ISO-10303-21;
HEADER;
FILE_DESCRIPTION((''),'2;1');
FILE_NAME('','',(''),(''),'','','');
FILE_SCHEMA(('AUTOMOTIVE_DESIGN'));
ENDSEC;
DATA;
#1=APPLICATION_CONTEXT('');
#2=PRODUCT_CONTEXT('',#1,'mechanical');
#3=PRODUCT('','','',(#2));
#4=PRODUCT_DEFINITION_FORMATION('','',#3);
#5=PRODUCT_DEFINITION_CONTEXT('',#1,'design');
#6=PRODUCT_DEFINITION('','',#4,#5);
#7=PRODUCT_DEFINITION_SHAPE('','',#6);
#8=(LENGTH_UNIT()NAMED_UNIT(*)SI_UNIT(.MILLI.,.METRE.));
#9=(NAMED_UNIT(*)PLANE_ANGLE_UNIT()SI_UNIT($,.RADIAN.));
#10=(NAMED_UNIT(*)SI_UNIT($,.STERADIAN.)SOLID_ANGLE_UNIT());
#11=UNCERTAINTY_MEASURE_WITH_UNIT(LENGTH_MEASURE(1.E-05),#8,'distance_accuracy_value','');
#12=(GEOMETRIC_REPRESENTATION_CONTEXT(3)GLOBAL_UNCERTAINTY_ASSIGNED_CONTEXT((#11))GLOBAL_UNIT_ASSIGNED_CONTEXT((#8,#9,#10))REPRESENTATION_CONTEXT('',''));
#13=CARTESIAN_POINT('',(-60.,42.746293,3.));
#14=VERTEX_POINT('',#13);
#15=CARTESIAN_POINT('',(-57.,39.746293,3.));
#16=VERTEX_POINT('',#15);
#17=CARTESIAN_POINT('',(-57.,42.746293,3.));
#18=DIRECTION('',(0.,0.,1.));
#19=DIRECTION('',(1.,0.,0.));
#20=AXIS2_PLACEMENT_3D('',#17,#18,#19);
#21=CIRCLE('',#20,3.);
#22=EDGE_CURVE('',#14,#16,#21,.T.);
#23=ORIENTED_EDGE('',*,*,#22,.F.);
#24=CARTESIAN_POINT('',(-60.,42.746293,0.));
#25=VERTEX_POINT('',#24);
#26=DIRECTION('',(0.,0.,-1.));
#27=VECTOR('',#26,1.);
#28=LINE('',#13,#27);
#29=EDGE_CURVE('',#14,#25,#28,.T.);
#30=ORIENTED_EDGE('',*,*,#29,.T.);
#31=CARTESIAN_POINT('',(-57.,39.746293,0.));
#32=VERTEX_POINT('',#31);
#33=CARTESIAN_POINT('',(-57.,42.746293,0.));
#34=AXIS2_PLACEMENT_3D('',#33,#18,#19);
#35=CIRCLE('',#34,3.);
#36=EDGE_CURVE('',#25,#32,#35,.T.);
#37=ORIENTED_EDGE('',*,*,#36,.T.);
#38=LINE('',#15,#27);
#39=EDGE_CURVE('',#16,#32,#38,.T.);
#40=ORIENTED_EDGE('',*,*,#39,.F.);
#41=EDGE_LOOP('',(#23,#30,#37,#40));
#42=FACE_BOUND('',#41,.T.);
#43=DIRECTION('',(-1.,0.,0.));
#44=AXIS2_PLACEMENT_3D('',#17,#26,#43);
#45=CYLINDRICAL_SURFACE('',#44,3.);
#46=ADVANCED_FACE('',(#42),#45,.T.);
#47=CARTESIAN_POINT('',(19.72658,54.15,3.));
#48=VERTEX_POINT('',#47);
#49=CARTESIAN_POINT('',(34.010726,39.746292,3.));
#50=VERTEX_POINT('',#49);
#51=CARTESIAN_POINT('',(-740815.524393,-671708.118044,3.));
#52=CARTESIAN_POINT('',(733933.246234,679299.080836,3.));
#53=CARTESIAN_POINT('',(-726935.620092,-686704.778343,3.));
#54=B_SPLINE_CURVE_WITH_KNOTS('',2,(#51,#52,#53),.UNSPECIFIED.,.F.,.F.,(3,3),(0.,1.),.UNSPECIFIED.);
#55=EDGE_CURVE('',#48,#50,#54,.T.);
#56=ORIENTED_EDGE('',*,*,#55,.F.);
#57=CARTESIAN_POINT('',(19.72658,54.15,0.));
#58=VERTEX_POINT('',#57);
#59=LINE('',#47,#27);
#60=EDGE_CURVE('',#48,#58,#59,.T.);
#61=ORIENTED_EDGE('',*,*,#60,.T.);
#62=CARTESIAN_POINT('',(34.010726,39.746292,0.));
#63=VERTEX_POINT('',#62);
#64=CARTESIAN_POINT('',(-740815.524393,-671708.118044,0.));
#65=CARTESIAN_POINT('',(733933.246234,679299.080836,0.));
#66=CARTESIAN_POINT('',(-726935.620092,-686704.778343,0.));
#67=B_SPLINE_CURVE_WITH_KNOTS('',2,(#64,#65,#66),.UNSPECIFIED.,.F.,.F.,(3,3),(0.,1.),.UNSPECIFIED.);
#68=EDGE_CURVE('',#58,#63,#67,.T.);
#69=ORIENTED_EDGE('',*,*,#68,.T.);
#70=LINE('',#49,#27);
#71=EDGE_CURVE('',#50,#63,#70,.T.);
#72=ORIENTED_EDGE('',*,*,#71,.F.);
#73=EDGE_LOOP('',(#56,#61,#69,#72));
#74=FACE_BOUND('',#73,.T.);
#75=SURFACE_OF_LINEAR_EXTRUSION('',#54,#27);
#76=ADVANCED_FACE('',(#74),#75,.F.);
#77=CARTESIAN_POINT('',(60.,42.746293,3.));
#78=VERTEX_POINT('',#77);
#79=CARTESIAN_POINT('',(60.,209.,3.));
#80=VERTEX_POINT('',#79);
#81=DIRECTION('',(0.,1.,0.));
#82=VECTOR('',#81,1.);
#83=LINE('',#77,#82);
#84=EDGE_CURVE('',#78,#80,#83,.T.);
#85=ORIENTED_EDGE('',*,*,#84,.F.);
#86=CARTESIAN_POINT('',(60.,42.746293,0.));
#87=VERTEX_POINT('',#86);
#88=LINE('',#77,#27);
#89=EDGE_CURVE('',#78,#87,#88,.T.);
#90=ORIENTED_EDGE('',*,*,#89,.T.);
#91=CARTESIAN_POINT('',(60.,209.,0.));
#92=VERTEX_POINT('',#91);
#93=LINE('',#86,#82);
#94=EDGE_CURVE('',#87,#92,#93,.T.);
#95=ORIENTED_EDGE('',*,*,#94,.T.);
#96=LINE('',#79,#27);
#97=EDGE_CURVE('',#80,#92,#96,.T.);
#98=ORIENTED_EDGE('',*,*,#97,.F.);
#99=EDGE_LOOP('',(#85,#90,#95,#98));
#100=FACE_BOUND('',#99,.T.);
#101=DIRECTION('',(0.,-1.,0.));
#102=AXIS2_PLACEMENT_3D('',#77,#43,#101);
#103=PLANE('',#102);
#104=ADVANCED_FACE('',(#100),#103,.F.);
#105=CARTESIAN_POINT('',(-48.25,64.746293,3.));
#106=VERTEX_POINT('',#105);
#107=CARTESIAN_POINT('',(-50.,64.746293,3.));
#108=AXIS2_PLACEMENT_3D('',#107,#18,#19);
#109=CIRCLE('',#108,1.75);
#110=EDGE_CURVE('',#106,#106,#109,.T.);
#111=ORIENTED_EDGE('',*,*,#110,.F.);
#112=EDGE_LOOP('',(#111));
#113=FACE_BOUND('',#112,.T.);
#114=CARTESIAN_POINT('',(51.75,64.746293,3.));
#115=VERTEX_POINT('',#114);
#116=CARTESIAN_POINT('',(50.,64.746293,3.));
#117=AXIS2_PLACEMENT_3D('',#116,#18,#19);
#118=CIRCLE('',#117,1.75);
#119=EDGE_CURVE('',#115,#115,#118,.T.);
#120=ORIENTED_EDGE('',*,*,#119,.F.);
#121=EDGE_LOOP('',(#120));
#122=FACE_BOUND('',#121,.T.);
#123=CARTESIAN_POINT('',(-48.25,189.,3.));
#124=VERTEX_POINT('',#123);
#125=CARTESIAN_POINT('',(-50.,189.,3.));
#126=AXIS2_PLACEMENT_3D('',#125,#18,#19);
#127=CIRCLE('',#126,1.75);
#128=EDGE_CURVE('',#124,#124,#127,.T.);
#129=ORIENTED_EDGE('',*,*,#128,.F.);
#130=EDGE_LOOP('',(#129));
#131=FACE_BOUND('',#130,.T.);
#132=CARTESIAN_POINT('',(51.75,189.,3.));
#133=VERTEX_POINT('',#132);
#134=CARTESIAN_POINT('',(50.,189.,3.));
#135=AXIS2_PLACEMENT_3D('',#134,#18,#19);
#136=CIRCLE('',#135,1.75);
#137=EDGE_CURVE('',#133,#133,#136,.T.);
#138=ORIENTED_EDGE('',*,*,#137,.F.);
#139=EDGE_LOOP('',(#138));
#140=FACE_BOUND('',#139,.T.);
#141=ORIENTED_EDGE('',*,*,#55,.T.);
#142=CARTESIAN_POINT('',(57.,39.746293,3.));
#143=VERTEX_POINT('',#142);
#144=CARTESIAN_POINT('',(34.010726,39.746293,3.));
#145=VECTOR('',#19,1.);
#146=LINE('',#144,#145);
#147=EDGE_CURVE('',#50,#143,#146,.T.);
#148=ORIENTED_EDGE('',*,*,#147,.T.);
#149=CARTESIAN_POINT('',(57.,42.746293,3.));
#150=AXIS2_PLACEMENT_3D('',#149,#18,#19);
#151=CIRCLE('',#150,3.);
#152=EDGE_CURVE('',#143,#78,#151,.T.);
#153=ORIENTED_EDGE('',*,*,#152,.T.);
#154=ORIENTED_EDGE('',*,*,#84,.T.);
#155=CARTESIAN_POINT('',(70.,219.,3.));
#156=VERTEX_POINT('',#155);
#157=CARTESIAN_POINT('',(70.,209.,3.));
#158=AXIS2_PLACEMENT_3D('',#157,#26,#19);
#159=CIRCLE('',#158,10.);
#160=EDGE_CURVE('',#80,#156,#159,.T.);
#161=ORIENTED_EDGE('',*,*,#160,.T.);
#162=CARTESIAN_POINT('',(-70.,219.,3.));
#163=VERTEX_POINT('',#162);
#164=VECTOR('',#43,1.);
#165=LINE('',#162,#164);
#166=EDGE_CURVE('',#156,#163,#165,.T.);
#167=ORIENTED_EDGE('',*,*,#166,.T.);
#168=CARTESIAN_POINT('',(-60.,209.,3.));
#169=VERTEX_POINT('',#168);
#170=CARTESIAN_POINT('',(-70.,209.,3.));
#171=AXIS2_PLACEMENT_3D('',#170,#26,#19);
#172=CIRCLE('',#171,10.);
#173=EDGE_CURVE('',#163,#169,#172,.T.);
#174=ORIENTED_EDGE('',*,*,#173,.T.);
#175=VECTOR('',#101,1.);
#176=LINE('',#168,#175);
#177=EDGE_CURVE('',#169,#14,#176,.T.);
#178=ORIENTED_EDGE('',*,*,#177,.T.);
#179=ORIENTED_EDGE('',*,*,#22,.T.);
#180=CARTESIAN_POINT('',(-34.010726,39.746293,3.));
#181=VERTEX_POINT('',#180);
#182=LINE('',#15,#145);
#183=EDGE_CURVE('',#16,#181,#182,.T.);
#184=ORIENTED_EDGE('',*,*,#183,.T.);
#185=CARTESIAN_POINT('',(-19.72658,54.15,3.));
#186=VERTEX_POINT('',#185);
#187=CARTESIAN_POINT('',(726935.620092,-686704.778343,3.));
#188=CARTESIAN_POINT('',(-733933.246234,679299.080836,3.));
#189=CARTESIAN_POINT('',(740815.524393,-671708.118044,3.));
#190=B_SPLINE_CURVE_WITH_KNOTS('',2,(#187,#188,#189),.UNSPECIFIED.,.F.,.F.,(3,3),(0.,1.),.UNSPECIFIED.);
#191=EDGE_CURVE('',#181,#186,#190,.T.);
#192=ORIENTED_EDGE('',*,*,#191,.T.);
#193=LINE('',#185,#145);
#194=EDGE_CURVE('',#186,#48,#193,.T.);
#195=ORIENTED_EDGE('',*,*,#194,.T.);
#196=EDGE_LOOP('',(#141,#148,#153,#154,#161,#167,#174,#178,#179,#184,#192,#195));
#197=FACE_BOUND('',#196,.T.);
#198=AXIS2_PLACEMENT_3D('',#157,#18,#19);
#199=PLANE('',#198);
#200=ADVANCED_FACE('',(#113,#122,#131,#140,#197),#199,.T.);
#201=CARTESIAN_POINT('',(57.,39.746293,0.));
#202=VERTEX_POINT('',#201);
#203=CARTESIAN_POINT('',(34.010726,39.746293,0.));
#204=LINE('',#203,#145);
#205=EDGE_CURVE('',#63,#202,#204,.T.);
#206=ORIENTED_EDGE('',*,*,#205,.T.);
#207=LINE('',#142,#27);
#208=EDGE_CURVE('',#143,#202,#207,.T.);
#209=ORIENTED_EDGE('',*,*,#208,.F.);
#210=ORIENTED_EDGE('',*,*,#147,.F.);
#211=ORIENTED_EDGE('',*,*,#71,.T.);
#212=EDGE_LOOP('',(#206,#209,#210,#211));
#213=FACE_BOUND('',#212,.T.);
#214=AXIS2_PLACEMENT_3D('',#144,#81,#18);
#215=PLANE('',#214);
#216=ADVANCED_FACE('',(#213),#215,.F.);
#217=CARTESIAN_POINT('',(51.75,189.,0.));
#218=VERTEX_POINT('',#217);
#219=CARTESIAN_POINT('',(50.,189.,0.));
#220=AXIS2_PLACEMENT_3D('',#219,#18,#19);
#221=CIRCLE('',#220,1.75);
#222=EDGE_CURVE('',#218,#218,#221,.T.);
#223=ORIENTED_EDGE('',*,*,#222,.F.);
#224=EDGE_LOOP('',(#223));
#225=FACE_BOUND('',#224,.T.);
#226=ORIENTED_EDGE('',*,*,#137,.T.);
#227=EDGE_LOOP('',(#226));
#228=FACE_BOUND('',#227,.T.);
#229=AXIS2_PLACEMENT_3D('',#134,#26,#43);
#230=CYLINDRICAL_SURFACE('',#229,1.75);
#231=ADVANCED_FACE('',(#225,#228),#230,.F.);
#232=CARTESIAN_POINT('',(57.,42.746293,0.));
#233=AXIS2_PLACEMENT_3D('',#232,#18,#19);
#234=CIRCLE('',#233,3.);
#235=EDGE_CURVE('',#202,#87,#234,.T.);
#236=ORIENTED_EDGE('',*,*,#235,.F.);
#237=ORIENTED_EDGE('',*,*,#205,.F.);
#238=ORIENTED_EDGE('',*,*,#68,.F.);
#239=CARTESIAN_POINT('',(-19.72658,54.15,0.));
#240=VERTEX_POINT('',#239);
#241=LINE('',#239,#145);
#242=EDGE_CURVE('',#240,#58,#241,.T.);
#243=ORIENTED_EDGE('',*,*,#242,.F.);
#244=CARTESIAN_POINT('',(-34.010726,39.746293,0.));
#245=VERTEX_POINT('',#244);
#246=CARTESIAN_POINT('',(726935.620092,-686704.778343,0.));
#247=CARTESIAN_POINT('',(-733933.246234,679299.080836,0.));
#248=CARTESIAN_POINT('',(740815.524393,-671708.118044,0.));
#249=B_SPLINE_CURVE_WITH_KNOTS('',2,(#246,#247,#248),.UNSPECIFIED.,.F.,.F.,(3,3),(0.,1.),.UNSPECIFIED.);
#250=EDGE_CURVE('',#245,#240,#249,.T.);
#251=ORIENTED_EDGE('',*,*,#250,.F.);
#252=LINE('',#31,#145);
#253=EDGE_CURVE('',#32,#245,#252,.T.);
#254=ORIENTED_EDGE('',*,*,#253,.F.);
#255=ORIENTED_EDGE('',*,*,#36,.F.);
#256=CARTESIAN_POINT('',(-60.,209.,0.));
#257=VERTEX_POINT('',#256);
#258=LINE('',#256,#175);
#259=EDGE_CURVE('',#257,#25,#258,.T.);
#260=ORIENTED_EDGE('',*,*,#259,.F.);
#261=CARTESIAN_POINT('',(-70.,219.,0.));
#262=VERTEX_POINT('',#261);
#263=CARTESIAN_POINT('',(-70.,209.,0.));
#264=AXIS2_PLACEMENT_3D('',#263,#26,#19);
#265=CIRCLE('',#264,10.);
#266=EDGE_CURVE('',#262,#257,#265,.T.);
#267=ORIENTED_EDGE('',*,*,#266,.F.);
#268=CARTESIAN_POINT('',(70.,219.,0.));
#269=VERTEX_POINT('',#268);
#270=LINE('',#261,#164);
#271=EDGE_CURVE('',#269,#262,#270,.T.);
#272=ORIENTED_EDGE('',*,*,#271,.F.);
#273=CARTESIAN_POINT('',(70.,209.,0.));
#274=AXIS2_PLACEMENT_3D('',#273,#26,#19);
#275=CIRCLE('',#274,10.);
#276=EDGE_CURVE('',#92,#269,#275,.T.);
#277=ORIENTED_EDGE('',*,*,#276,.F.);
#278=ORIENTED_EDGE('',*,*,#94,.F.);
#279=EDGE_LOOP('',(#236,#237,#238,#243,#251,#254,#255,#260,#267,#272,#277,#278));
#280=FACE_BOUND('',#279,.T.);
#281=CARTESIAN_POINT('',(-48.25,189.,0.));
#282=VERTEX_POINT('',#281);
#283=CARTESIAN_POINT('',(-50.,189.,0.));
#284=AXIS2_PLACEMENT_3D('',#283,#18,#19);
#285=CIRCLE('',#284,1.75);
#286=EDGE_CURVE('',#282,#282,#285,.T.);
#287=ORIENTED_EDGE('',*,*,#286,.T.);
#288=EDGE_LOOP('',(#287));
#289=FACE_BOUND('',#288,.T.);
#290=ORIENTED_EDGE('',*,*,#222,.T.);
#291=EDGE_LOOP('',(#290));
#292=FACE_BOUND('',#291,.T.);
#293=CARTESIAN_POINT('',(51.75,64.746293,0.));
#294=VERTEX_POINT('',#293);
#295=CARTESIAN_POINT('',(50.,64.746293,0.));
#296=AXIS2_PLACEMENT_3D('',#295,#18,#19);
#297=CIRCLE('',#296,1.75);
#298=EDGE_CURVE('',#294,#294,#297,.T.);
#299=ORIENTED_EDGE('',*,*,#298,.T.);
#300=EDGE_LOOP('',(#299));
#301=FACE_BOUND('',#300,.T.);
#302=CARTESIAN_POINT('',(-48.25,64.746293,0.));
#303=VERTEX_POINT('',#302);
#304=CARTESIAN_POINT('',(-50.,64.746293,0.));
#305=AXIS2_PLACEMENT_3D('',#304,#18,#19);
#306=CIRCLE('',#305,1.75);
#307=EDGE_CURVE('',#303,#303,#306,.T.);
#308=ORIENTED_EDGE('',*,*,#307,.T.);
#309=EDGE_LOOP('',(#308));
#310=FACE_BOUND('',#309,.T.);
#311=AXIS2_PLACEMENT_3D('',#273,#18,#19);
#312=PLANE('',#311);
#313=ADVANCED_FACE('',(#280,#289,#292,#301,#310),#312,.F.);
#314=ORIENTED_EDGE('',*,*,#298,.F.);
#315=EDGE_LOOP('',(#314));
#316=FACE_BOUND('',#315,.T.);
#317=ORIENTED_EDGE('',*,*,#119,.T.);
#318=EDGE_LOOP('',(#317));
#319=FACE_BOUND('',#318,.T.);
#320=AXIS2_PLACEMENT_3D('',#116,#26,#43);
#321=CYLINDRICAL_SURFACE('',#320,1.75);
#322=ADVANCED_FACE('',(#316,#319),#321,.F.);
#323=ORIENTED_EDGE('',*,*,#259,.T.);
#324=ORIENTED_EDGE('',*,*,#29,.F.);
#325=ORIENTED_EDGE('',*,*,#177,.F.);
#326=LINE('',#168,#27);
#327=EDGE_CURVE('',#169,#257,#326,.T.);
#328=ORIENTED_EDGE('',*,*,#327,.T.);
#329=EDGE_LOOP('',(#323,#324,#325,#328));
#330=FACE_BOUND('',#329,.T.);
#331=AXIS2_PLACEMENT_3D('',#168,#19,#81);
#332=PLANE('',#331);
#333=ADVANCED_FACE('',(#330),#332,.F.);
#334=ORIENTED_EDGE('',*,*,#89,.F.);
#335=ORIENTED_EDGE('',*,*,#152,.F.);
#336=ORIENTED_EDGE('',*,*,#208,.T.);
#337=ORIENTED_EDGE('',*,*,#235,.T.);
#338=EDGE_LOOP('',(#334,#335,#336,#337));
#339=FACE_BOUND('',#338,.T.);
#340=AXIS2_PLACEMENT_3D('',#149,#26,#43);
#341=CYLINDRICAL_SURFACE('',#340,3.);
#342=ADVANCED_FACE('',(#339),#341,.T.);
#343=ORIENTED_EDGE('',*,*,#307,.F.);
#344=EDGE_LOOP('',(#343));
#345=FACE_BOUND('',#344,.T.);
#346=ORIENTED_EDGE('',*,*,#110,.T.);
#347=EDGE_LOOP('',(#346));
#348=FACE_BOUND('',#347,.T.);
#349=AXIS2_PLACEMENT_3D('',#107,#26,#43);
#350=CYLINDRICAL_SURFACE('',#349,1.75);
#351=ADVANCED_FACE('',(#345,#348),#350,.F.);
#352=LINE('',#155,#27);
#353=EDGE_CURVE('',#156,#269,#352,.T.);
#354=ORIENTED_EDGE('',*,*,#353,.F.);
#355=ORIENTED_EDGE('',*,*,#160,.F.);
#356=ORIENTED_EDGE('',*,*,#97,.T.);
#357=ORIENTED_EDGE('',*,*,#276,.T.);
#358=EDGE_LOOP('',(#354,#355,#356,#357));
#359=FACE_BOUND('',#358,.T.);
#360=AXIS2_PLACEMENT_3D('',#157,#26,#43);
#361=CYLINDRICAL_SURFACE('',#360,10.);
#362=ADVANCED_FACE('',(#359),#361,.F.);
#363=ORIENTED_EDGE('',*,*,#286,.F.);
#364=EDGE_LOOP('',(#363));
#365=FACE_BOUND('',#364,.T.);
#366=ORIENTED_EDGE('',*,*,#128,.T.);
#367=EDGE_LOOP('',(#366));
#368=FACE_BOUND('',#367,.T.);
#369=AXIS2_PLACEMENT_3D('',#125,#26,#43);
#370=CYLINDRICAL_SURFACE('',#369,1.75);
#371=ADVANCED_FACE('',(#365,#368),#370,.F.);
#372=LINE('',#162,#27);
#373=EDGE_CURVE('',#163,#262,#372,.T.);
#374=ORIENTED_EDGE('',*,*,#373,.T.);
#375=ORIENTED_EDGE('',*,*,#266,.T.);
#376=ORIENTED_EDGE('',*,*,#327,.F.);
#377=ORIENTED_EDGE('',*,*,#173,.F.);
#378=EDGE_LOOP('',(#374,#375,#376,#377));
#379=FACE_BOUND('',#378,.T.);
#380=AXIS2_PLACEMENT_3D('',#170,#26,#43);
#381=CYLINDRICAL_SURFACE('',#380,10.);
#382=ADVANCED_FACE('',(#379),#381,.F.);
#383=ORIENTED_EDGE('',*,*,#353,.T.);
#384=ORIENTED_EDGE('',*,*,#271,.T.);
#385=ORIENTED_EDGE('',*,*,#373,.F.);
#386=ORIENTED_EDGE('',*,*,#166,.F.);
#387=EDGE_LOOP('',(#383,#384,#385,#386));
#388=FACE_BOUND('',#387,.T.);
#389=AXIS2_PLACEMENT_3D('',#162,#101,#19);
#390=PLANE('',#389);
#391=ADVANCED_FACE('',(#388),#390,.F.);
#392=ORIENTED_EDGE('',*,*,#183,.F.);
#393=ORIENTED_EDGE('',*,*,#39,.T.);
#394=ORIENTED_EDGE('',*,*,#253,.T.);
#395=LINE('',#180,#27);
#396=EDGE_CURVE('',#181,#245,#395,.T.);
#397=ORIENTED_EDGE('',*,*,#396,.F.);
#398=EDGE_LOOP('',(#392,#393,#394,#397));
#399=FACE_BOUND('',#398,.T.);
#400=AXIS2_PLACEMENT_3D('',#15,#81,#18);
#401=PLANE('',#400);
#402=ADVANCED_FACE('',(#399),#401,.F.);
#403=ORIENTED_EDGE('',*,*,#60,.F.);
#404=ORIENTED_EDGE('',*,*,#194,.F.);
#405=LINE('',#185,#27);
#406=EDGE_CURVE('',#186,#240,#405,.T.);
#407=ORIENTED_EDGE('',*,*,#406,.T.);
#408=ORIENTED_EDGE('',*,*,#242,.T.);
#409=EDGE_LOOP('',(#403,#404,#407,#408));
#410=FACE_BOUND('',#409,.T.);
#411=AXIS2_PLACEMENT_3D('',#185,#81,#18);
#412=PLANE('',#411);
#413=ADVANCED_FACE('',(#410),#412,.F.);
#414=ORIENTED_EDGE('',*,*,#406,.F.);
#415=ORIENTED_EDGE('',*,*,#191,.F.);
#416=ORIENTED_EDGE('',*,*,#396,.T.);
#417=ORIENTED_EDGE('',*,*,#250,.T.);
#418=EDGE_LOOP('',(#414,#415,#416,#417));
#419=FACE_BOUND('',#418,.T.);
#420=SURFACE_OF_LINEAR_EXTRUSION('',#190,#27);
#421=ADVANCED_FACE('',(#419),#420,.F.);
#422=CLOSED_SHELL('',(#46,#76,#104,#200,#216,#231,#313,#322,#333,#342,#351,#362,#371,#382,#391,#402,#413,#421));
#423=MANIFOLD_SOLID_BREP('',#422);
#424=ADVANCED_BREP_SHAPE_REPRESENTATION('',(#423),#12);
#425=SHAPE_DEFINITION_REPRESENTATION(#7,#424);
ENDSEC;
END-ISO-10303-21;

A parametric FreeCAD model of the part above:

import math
import FreeCAD as App
import Part
import Sketcher

V = App.Vector

doc = App.newDocument("Part")
body = doc.addObject("PartDesign::Body", "Body")

sketch1 = body.newObject("Sketcher::SketchObject", "Sketch")
sketch1.AttachmentSupport = (doc.getObject("XY_Plane"), [""])
sketch1.MapMode = "FlatFace"
sketch1.addGeometry([
    Part.LineSegment(V(70, 219, 0), V(-70, 219, 0)),
    Part.ArcOfCircle(Part.Circle(V(-70, 209, 0), V(0, 0, 1), 10), math.radians(0), math.radians(90)),
    Part.LineSegment(V(-60, 209, 0), V(-60, 42.746293, 0)),
    Part.ArcOfCircle(Part.Circle(V(-57, 42.746293, 0), V(0, 0, 1), 3), math.radians(180), math.radians(270)),
    Part.LineSegment(V(-57, 39.746293, 0), V(-34.010726, 39.746293, 0)),
    Part.BSplineCurve([V(-34.010726, 39.746293, 0), V(-28.313482, 48.285383, 0), V(-19.72658, 54.15, 0)], [3, 3], [0, 1], False, 2, [1, 1, 1], False),
    Part.LineSegment(V(-19.72658, 54.15, 0), V(19.72658, 54.15, 0)),
    Part.BSplineCurve([V(19.72658, 54.15, 0), V(28.313482, 48.285383, 0), V(34.010726, 39.746293, 0)], [3, 3], [0, 1], False, 2, [1, 1, 1], False),
    Part.LineSegment(V(34.010726, 39.746293, 0), V(57, 39.746293, 0)),
    Part.ArcOfCircle(Part.Circle(V(57, 42.746293, 0), V(0, 0, 1), 3), math.radians(-90), math.radians(0)),
    Part.LineSegment(V(60, 42.746293, 0), V(60, 209, 0)),
    Part.ArcOfCircle(Part.Circle(V(70, 209, 0), V(0, 0, 1), 10), math.radians(90), math.radians(180)),
    Part.Circle(V(50, 64.746293, 0), V(0, 0, 1), 1.75),
    Part.Circle(V(-50, 64.746293, 0), V(0, 0, 1), 1.75),
    Part.Circle(V(50, 189, 0), V(0, 0, 1), 1.75),
    Part.Circle(V(-50, 189, 0), V(0, 0, 1), 1.75),
], False)
sketch1.addConstraint([
    Sketcher.Constraint("Block", 5),
    Sketcher.Constraint("Block", 7),
    Sketcher.Constraint("Tangent", 0, 2, 1, 2),
    Sketcher.Constraint("Tangent", 1, 1, 2, 1),
    Sketcher.Constraint("Tangent", 2, 2, 3, 1),
    Sketcher.Constraint("Tangent", 3, 2, 4, 1),
    Sketcher.Constraint("Coincident", 4, 2, 5, 1),
    Sketcher.Constraint("Coincident", 5, 2, 6, 1),
    Sketcher.Constraint("Coincident", 6, 2, 7, 1),
    Sketcher.Constraint("Coincident", 7, 2, 8, 1),
    Sketcher.Constraint("Tangent", 8, 2, 9, 1),
    Sketcher.Constraint("Tangent", 9, 2, 10, 1),
    Sketcher.Constraint("Tangent", 10, 2, 11, 2),
    Sketcher.Constraint("Tangent", 11, 1, 0, 1),
    Sketcher.Constraint("Horizontal", 0),
    Sketcher.Constraint("Vertical", 2),
    Sketcher.Constraint("Horizontal", 4),
    Sketcher.Constraint("Horizontal", 8),
    Sketcher.Constraint("Vertical", 10),
    Sketcher.Constraint("Equal", 3, 9),
    Sketcher.Constraint("Equal", 1, 11),
    Sketcher.Constraint("Equal", 12, 13),
    Sketcher.Constraint("Equal", 13, 14),
    Sketcher.Constraint("Equal", 14, 15),
    Sketcher.Constraint("Symmetric", 12, 3, 13, 3, -2),
    Sketcher.Constraint("Symmetric", 14, 3, 15, 3, -2),
    Sketcher.Constraint("Vertical", 12, 3, 14, 3),
    Sketcher.Constraint("Equal", 4, 8),
    Sketcher.Constraint("Radius", 1, 10.0),
    Sketcher.Constraint("Radius", 3, 3.0),
    Sketcher.Constraint("Diameter", 12, 3.5),
    Sketcher.Constraint("DistanceX", 0, 2, 0, 1, 140.0),
    Sketcher.Constraint("DistanceY", -1, 1, 1, 3, 209.0),
    Sketcher.Constraint("DistanceX", -1, 1, 12, 3, 50.0),
    Sketcher.Constraint("DistanceY", -1, 1, 14, 3, 189.0),
    Sketcher.Constraint("DistanceY", 9, 3, 12, 3, 22.0),
])
pad1 = body.newObject("PartDesign::Pad", "Pad")
pad1.Profile = sketch1
pad1.Length = 3

doc.recompute()
